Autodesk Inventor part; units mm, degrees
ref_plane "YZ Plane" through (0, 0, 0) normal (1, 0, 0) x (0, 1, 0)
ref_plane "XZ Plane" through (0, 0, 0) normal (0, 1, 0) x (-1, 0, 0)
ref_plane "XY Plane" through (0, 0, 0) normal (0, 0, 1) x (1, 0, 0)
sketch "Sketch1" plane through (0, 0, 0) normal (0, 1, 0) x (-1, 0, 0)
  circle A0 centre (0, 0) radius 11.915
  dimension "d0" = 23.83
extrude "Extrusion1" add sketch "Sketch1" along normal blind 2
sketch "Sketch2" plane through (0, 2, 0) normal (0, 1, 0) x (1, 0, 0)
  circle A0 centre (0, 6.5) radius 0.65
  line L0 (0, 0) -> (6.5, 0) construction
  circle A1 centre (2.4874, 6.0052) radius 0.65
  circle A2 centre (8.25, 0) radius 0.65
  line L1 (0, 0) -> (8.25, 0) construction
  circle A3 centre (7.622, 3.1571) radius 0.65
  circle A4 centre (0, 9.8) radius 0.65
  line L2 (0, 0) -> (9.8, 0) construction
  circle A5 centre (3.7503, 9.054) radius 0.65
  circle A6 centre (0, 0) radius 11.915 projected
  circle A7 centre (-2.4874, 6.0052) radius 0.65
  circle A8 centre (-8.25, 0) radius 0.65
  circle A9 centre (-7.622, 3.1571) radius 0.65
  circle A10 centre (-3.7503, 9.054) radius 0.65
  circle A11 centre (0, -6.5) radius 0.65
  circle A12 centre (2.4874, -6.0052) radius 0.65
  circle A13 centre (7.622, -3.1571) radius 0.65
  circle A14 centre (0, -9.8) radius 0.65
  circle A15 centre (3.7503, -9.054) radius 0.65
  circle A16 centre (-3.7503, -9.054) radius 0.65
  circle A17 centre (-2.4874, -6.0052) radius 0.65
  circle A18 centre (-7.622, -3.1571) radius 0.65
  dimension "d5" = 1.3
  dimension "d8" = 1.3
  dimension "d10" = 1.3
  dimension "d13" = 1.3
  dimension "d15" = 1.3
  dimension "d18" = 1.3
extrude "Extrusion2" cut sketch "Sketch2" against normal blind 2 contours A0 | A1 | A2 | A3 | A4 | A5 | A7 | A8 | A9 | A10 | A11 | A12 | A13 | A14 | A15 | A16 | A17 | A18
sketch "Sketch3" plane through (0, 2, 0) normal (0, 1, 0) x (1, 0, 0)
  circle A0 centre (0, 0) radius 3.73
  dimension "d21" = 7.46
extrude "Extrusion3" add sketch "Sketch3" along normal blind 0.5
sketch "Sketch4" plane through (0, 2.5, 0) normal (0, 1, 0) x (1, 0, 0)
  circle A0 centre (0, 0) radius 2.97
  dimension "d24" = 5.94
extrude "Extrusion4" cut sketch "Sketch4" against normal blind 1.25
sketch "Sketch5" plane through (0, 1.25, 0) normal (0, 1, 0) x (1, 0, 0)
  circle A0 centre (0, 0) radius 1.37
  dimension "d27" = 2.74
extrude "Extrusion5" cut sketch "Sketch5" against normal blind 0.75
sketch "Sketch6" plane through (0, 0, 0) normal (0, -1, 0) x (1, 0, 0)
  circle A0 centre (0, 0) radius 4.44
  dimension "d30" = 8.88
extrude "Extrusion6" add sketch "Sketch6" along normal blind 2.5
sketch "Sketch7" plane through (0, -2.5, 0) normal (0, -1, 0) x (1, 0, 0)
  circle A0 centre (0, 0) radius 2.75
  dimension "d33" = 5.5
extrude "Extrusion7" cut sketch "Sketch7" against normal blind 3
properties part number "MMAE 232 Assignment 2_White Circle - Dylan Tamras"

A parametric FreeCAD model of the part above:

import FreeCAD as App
import Part
import Sketcher
from FreeCAD import Vector

doc = App.newDocument("Part")
body = doc.addObject("PartDesign::Body", "Body")

# Sketch on XZ plane
sketch1 = body.newObject("Sketcher::SketchObject", "Sketch")
sketch1.AttachmentSupport = (doc.getObject("XZ_Plane"), [""])
sketch1.MapMode = "FlatFace"
sketch1.addGeometry(Part.Circle(Vector(0, 0, 0), Vector(0, 0, 1), 12), False)
sketch1.addConstraint([
    Sketcher.Constraint("Coincident", 0, 3, -1, 1),
    Sketcher.Constraint("Diameter", 0, 23.83),
])
pad1 = body.newObject("PartDesign::Pad", "Pad")
pad1.Profile = sketch1
pad1.Length = 2
pad1.Reversed = True

# Sketch on XZ plane
sketch2 = body.newObject("Sketcher::SketchObject", "Sketch001")
sketch2.AttachmentSupport = (doc.getObject("XZ_Plane"), [""])
sketch2.MapMode = "FlatFace"
sketch2.AttachmentOffset = App.Placement(Vector(0, 0, -2), App.Rotation())
sketch2.addGeometry([
    Part.Circle(Vector(0, -6.5, 0), Vector(0, 0, 1), 0.7),  # 0
    Part.Circle(Vector(2.5, -6, 0), Vector(0, 0, 1), 0.7),  # 1
    Part.Circle(Vector(8.2, 0, 0), Vector(0, 0, 1), 0.7),  # 2
    Part.Circle(Vector(7.6, -3.2, 0), Vector(0, 0, 1), 0.7),  # 3
    Part.Circle(Vector(0, -9.8, 0), Vector(0, 0, 1), 0.7),  # 4
    Part.Circle(Vector(3.8, -9.1, 0), Vector(0, 0, 1), 0.7),  # 5
    Part.Circle(Vector(-2.5, -6, 0), Vector(0, 0, 1), 0.7),  # 6
    Part.Circle(Vector(-8.2, 0, 0), Vector(0, 0, 1), 0.7),  # 7
    Part.Circle(Vector(-7.6, -3.2, 0), Vector(0, 0, 1), 0.7),  # 8
    Part.Circle(Vector(-3.8, -9.1, 0), Vector(0, 0, 1), 0.7),  # 9
    Part.Circle(Vector(0, 6.5, 0), Vector(0, 0, 1), 0.7),  # 10
    Part.Circle(Vector(2.5, 6, 0), Vector(0, 0, 1), 0.7),  # 11
    Part.Circle(Vector(7.6, 3.2, 0), Vector(0, 0, 1), 0.7),  # 12
    Part.Circle(Vector(0, 9.8, 0), Vector(0, 0, 1), 0.7),  # 13
    Part.Circle(Vector(3.8, 9.1, 0), Vector(0, 0, 1), 0.7),  # 14
    Part.Circle(Vector(-3.8, 9.1, 0), Vector(0, 0, 1), 0.7),  # 15
    Part.Circle(Vector(-2.5, 6, 0), Vector(0, 0, 1), 0.7),  # 16
    Part.Circle(Vector(-7.6, 3.2, 0), Vector(0, 0, 1), 0.7),  # 17
], False)
sketch2.addConstraint([
    Sketcher.Constraint("Equal", 0, 1),
    Sketcher.Constraint("Equal", 1, 2),
    Sketcher.Constraint("Equal", 2, 3),
    Sketcher.Constraint("Equal", 3, 4),
    Sketcher.Constraint("Equal", 4, 5),
    Sketcher.Constraint("Equal", 5, 6),
    Sketcher.Constraint("Equal", 6, 7),
    Sketcher.Constraint("Equal", 7, 8),
    Sketcher.Constraint("Equal", 8, 9),
    Sketcher.Constraint("Equal", 9, 10),
    Sketcher.Constraint("Equal", 10, 11),
    Sketcher.Constraint("Equal", 11, 12),
    Sketcher.Constraint("Equal", 12, 13),
    Sketcher.Constraint("Equal", 13, 14),
    Sketcher.Constraint("Equal", 14, 15),
    Sketcher.Constraint("Equal", 15, 16),
    Sketcher.Constraint("Equal", 16, 17),
    Sketcher.Constraint("Symmetric", 2, 3, 7, 3, -1, 1),
    Sketcher.Constraint("Symmetric", 0, 3, 10, 3, -1, 1),
    Sketcher.Constraint("Symmetric", 6, 3, 11, 3, -1, 1),
    Sketcher.Constraint("Symmetric", 8, 3, 12, 3, -1, 1),
    Sketcher.Constraint("Symmetric", 4, 3, 13, 3, -1, 1),
    Sketcher.Constraint("Symmetric", 9, 3, 14, 3, -1, 1),
    Sketcher.Constraint("Symmetric", 5, 3, 15, 3, -1, 1),
    Sketcher.Constraint("Symmetric", 1, 3, 16, 3, -1, 1),
    Sketcher.Constraint("Symmetric", 3, 3, 17, 3, -1, 1),
    Sketcher.Constraint("Symmetric", 1, 3, 6, 3, -2),
    Sketcher.Constraint("Symmetric", 3, 3, 8, 3, -2),
    Sketcher.Constraint("Symmetric", 5, 3, 9, 3, -2),
    Sketcher.Constraint("PointOnObject", 0, 3, -2),
    Sketcher.Constraint("PointOnObject", 2, 3, -1),
    Sketcher.Constraint("PointOnObject", 4, 3, -2),
    Sketcher.Constraint("Diameter", 0, 1.3),
    Sketcher.Constraint("DistanceY", 0, 3, -1, 1, 6.5),
    Sketcher.Constraint("DistanceY", 4, 3, -1, 1, 9.8),
    Sketcher.Constraint("DistanceX", -1, 1, 2, 3, 8.25),
    Sketcher.Constraint("DistanceX", -1, 1, 3, 3, 7.622),
    Sketcher.Constraint("DistanceY", 3, 3, -1, 1, 3.157),
    Sketcher.Constraint("DistanceY", 5, 3, -1, 1, 9.054),
    Sketcher.Constraint("DistanceY", 1, 3, 3, 3, 2.848),
    Sketcher.Constraint("DistanceX", 1, 3, 5, 3, 1.263),
    Sketcher.Constraint("DistanceX", -1, 1, 1, 3, 2.4874),
])
pocket1 = body.newObject("PartDesign::Pocket", "Pocket")
pocket1.Profile = sketch2
pocket1.Length = 2
pocket1.Reversed = True

# Sketch on XZ plane
sketch3 = body.newObject("Sketcher::SketchObject", "Sketch002")
sketch3.AttachmentSupport = (doc.getObject("XZ_Plane"), [""])
sketch3.MapMode = "FlatFace"
sketch3.AttachmentOffset = App.Placement(Vector(0, 0, -2), App.Rotation())
sketch3.addGeometry(Part.Circle(Vector(0, 0, 0), Vector(0, 0, 1), 3.7), False)
sketch3.addConstraint([
    Sketcher.Constraint("Coincident", 0, 3, -1, 1),
    Sketcher.Constraint("Diameter", 0, 7.46),
])
pad2 = body.newObject("PartDesign::Pad", "Pad001")
pad2.Profile = sketch3
pad2.Length = 0.5
pad2.Reversed = True

# Sketch on XZ plane
sketch4 = body.newObject("Sketcher::SketchObject", "Sketch003")
sketch4.AttachmentSupport = (doc.getObject("XZ_Plane"), [""])
sketch4.MapMode = "FlatFace"
sketch4.AttachmentOffset = App.Placement(Vector(0, 0, -2.5), App.Rotation())
sketch4.addGeometry(Part.Circle(Vector(0, 0, 0), Vector(0, 0, 1), 3), False)
sketch4.addConstraint([
    Sketcher.Constraint("Coincident", 0, 3, -1, 1),
    Sketcher.Constraint("Diameter", 0, 5.94),
])
pocket2 = body.newObject("PartDesign::Pocket", "Pocket001")
pocket2.Profile = sketch4
pocket2.Length = 1.25
pocket2.Reversed = True

# Sketch on XZ plane
sketch5 = body.newObject("Sketcher::SketchObject", "Sketch004")
sketch5.AttachmentSupport = (doc.getObject("XZ_Plane"), [""])
sketch5.MapMode = "FlatFace"
sketch5.AttachmentOffset = App.Placement(Vector(0, 0, -1.25), App.Rotation())
sketch5.addGeometry(Part.Circle(Vector(0, 0, 0), Vector(0, 0, 1), 1.4), False)
sketch5.addConstraint([
    Sketcher.Constraint("Coincident", 0, 3, -1, 1),
    Sketcher.Constraint("Diameter", 0, 2.74),
])
pocket3 = body.newObject("PartDesign::Pocket", "Pocket002")
pocket3.Profile = sketch5
pocket3.Length = 0.75
pocket3.Reversed = True

# Sketch on XZ plane
sketch6 = body.newObject("Sketcher::SketchObject", "Sketch005")
sketch6.AttachmentSupport = (doc.getObject("XZ_Plane"), [""])
sketch6.MapMode = "FlatFace"
sketch6.addGeometry(Part.Circle(Vector(0, 0, 0), Vector(0, 0, 1), 4.4), False)
sketch6.addConstraint([
    Sketcher.Constraint("Coincident", 0, 3, -1, 1),
    Sketcher.Constraint("Diameter", 0, 8.88),
])
pad3 = body.newObject("PartDesign::Pad", "Pad002")
pad3.Profile = sketch6
pad3.Length = 2.5

# Sketch on XZ plane
sketch7 = body.newObject("Sketcher::SketchObject", "Sketch006")
sketch7.AttachmentSupport = (doc.getObject("XZ_Plane"), [""])
sketch7.MapMode = "FlatFace"
sketch7.AttachmentOffset = App.Placement(Vector(0, 0, 2.5), App.Rotation())
sketch7.addGeometry(Part.Circle(Vector(0, 0, 0), Vector(0, 0, 1), 2.8), False)
sketch7.addConstraint([
    Sketcher.Constraint("Coincident", 0, 3, -1, 1),
    Sketcher.Constraint("Diameter", 0, 5.5),
])
pocket4 = body.newObject("PartDesign::Pocket", "Pocket003")
pocket4.Profile = sketch7
pocket4.Length = 3

doc.recompute()
